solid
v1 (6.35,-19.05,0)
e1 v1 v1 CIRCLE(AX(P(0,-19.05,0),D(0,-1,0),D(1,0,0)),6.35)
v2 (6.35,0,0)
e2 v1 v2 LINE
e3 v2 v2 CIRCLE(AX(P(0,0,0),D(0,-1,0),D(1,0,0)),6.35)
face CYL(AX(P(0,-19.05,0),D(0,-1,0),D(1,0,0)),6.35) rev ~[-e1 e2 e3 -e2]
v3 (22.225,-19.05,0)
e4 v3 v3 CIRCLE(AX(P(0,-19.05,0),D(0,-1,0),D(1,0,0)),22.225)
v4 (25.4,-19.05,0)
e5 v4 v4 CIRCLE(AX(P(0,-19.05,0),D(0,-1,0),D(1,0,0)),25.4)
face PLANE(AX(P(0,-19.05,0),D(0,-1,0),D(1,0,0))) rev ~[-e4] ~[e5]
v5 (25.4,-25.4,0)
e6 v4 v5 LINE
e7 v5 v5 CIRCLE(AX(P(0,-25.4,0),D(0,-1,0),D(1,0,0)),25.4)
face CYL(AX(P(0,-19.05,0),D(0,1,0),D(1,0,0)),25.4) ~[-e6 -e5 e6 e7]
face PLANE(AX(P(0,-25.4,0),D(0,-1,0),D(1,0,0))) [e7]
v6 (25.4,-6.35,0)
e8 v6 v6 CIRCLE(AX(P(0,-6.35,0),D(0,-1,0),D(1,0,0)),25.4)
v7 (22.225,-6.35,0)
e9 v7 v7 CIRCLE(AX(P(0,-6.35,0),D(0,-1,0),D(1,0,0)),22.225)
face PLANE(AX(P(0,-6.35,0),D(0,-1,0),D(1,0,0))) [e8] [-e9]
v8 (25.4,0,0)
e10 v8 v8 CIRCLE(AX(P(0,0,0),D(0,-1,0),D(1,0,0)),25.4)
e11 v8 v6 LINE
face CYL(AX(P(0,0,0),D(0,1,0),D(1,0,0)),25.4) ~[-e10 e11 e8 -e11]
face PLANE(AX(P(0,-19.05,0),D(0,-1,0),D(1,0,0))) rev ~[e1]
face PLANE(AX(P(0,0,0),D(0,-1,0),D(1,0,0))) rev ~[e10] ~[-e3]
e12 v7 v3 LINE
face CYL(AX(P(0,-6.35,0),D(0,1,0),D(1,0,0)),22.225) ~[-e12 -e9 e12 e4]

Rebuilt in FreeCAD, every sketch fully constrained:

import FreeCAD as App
import Part
import Sketcher
Q = App.Units.Quantity

doc = App.newDocument("Part")
body = doc.addObject("PartDesign::Body", "Body")

# Sketch on XZ plane
sketch1 = doc.addObject("Sketcher::SketchObject", "Sketch")
body.addObject(sketch1)
sketch1.AttachmentSupport = (doc.XZ_Plane, [""])
sketch1.MapMode = "FlatFace"
sketch1.addGeometry(Part.Circle(App.Vector(0, 0, 0), App.Vector(0, 0, 1), 25), False)
sketch1.addConstraint(Sketcher.Constraint("Coincident", 0, 3, -1, 1))
sketch1.addConstraint(Sketcher.Constraint("Diameter", 0, Q("2 in")))
pad1 = doc.addObject("PartDesign::Pad", "Pad")
body.addObject(pad1)
pad1.Profile = sketch1
pad1.Length = Q("0.25 in")

# Sketch on XZ plane
sketch2 = doc.addObject("Sketcher::SketchObject", "Sketch001")
body.addObject(sketch2)
sketch2.AttachmentSupport = (doc.XZ_Plane, [""])
sketch2.MapMode = "FlatFace"
sketch2.AttachmentOffset = App.Placement(App.Vector(0, 0, 0.25 * 25.4), App.Rotation())
sketch2.addGeometry(Part.Circle(App.Vector(0, 0, 0), App.Vector(0, 0, 1), 22), False)
sketch2.addConstraint(Sketcher.Constraint("Coincident", 0, 3, -1, 1))
sketch2.addConstraint(Sketcher.Constraint("Diameter", 0, Q("1.75 in")))
pad2 = doc.addObject("PartDesign::Pad", "Pad001")
body.addObject(pad2)
pad2.Profile = sketch2
pad2.Length = Q("0.5 in")

# Sketch on XZ plane
sketch3 = doc.addObject("Sketcher::SketchObject", "Sketch002")
body.addObject(sketch3)
sketch3.AttachmentSupport = (doc.XZ_Plane, [""])
sketch3.MapMode = "FlatFace"
sketch3.AttachmentOffset = App.Placement(App.Vector(0, 0, 0.75 * 25.4), App.Rotation())
sketch3.addGeometry(Part.Circle(App.Vector(0, 0, 0), App.Vector(0, 0, 1), 6), False)
sketch3.addConstraint(Sketcher.Constraint("Coincident", 0, 3, -1, 1))
sketch3.addConstraint(Sketcher.Constraint("Diameter", 0, Q("0.5 in")))
pocket1 = doc.addObject("PartDesign::Pocket", "Pocket")
body.addObject(pocket1)
pocket1.Profile = sketch3
pocket1.Type = "ThroughAll"

# Sketch on XZ plane
sketch4 = doc.addObject("Sketcher::SketchObject", "Sketch003")
body.addObject(sketch4)
sketch4.AttachmentSupport = (doc.XZ_Plane, [""])
sketch4.MapMode = "FlatFace"
sketch4.AttachmentOffset = App.Placement(App.Vector(0, 0, 0.75 * 25.4), App.Rotation())
sketch4.addGeometry(Part.Circle(App.Vector(0, 0, 0), App.Vector(0, 0, 1), 25), False)
sketch4.addConstraint(Sketcher.Constraint("Coincident", 0, 3, -1, 1))
sketch4.addConstraint(Sketcher.Constraint("Diameter", 0, Q("2 in")))
pad3 = doc.addObject("PartDesign::Pad", "Pad002")
body.addObject(pad3)
pad3.Profile = sketch4
pad3.Length = Q("0.25 in")

doc.recompute()
